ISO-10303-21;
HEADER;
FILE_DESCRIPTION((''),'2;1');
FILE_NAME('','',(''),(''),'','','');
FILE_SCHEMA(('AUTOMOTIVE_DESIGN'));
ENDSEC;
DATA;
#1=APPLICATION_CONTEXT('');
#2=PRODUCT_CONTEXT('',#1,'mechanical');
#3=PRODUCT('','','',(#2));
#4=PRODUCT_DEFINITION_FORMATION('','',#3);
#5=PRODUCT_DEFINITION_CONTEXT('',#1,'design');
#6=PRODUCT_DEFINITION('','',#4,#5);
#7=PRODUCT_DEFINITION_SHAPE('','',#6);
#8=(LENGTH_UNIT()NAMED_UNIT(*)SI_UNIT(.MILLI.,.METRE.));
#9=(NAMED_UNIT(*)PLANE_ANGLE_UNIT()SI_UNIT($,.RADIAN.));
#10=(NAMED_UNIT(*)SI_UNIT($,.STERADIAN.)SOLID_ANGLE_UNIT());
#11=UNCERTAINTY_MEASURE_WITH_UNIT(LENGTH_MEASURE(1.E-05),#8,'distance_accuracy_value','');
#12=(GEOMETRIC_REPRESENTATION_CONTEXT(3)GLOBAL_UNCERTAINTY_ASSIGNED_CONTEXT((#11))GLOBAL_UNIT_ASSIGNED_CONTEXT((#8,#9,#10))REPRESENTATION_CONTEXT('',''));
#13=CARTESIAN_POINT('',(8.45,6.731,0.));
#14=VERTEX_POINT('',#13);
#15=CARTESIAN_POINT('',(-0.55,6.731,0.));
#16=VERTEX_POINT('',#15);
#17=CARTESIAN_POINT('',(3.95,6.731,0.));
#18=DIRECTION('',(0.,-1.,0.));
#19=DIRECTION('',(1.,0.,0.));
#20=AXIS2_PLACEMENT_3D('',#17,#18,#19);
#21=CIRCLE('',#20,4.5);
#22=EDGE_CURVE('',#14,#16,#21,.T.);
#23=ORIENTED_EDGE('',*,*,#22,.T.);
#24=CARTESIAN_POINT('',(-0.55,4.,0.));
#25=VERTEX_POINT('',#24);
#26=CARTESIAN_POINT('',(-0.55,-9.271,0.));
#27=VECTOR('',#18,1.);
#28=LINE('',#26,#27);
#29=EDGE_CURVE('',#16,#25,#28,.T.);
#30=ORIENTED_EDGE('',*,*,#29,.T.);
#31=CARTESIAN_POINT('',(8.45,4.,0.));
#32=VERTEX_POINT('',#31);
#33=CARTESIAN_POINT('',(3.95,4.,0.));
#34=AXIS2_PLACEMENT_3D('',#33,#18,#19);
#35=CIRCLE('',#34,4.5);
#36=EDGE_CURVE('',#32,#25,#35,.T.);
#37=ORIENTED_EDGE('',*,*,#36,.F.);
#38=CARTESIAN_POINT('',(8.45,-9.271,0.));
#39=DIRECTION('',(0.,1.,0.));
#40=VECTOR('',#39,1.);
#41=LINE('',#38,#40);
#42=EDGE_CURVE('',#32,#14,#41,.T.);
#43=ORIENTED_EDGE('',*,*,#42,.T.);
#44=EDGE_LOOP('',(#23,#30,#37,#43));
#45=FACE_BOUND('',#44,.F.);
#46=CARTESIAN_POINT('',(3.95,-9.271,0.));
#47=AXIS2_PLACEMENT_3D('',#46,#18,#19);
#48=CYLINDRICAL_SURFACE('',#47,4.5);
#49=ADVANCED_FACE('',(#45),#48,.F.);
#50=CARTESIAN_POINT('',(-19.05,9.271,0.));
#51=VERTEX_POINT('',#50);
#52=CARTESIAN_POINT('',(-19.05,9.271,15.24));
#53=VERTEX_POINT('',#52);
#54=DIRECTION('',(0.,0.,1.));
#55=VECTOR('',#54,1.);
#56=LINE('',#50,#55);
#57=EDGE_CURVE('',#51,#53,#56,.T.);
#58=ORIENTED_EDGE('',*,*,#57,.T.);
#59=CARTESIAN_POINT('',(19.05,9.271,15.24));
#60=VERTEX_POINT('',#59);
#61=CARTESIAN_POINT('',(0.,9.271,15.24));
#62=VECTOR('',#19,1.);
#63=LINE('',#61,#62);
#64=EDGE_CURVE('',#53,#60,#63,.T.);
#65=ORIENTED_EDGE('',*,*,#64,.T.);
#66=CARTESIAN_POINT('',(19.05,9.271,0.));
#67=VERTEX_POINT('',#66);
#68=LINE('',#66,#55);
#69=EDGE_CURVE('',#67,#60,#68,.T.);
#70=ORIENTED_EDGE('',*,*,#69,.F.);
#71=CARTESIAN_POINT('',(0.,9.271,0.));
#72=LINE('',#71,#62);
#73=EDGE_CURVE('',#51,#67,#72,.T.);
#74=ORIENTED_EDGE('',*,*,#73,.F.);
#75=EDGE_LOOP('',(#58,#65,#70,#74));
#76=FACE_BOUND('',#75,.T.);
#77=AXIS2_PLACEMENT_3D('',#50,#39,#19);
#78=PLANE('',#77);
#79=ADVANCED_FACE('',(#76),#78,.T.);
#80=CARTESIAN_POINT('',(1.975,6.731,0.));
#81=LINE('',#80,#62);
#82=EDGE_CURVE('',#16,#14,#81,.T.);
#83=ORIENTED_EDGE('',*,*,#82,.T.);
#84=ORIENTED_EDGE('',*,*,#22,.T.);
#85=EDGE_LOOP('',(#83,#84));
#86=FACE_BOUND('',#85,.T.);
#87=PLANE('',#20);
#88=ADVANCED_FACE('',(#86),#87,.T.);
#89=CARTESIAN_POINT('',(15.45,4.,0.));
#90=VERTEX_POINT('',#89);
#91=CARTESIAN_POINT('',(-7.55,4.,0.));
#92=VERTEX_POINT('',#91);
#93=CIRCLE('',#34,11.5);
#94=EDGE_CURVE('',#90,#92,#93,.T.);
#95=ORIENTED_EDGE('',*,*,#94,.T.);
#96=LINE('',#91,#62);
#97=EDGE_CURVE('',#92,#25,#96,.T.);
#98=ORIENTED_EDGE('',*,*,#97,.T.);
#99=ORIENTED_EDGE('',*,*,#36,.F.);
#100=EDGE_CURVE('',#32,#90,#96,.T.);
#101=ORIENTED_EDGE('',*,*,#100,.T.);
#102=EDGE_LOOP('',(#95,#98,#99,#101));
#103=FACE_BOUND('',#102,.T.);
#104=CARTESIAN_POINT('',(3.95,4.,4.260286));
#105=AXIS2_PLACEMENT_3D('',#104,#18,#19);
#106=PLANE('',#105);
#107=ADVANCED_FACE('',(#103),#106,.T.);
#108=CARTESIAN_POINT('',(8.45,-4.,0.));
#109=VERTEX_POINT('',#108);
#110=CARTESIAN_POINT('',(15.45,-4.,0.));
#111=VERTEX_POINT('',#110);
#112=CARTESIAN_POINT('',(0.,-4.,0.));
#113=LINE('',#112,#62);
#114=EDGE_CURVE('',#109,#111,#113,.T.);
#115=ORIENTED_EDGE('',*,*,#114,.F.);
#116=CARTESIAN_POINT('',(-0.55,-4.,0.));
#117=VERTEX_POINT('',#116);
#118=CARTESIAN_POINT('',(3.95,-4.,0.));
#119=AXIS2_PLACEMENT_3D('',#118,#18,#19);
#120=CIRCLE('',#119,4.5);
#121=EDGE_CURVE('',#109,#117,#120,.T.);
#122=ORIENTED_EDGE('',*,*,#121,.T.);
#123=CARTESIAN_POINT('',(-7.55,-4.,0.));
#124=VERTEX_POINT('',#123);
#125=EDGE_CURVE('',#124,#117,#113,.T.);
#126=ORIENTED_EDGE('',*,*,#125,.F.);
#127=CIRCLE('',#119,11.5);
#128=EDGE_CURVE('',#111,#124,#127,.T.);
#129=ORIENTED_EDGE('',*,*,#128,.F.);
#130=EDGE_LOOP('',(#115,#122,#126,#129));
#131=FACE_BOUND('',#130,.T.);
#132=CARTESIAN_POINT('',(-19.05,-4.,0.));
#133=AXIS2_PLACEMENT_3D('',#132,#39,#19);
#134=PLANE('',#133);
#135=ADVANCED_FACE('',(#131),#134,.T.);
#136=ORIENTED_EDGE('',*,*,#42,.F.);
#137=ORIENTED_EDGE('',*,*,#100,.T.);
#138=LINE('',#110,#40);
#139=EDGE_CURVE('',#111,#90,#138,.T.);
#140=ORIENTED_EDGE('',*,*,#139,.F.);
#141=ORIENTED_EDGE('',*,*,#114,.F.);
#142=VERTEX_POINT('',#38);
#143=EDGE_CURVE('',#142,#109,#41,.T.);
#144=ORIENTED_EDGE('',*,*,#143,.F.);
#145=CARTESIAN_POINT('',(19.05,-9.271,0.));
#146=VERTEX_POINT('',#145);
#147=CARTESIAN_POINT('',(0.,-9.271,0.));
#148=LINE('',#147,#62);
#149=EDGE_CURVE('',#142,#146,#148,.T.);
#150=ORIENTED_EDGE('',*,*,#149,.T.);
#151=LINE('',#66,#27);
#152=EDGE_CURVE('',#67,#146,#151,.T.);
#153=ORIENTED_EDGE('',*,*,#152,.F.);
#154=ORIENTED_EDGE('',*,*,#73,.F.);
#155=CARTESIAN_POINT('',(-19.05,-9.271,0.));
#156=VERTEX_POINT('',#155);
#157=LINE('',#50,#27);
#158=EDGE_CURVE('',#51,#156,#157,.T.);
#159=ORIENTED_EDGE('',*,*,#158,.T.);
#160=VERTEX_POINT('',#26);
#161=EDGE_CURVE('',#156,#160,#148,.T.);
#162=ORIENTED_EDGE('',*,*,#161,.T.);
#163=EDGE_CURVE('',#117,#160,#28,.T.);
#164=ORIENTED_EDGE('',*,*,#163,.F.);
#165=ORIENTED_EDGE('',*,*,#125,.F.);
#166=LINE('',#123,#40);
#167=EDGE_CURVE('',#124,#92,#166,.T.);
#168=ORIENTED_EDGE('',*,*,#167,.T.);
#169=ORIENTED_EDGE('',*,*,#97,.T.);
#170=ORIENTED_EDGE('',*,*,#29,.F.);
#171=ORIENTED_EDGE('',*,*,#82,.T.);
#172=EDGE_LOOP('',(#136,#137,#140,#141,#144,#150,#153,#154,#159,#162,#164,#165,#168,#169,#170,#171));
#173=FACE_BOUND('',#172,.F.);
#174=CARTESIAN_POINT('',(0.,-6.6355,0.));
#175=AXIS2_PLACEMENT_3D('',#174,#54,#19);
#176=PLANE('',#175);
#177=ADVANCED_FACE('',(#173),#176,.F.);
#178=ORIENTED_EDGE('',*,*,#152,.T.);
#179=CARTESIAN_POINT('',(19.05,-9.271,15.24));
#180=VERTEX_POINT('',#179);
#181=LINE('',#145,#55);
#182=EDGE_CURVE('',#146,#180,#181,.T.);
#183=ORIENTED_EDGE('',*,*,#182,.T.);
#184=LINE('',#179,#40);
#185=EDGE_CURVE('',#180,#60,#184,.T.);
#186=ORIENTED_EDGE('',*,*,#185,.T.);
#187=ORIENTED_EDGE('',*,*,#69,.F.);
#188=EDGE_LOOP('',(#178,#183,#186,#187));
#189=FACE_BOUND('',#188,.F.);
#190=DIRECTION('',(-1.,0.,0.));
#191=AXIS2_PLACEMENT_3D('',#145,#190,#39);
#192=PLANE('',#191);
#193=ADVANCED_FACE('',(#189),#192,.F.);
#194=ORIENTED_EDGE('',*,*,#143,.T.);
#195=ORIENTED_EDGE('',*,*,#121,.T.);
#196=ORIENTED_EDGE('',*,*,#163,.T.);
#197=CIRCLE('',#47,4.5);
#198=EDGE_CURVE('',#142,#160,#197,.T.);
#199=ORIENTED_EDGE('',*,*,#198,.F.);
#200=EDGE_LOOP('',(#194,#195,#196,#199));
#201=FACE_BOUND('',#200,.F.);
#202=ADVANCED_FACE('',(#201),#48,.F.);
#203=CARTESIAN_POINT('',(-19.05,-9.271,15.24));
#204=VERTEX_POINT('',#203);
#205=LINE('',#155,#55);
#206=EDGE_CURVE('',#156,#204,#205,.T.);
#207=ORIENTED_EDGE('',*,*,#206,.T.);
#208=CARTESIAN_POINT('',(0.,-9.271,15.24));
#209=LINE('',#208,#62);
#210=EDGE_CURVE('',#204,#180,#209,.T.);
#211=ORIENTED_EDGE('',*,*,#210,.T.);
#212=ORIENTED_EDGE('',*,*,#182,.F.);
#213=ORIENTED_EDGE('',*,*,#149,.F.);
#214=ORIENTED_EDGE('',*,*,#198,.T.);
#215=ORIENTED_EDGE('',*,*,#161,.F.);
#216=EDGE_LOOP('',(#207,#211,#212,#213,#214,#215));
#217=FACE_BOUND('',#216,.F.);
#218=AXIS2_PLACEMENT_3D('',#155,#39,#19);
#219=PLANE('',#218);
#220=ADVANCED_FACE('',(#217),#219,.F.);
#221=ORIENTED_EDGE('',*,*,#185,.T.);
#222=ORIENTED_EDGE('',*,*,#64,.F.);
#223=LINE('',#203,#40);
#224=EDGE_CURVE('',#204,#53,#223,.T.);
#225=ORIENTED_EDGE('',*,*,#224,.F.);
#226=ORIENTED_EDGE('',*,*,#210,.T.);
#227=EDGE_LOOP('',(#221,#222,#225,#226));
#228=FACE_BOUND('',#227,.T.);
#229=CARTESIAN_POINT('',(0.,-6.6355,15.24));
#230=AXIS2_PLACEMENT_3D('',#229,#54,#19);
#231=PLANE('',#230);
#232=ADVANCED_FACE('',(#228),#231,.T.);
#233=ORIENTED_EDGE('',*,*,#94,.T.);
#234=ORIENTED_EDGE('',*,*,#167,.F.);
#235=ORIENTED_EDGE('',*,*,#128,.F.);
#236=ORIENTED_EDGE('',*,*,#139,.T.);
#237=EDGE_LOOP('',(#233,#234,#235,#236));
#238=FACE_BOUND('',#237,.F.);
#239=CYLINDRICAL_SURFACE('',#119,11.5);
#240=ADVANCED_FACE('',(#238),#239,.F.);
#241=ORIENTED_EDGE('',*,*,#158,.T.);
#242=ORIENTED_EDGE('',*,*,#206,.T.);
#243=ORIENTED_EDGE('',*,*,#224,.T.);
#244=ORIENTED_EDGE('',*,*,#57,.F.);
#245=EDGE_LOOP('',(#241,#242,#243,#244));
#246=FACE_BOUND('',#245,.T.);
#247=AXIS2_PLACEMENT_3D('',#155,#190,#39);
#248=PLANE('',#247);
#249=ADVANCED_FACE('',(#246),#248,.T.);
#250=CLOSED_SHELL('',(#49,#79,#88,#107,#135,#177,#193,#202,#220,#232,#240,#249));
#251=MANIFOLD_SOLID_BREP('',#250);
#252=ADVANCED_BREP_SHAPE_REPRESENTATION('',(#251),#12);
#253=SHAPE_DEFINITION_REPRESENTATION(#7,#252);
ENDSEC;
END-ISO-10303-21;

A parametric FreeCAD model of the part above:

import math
import FreeCAD as App
import Part
import Sketcher
from FreeCAD import Vector

doc = App.newDocument("Part")
body = doc.addObject("PartDesign::Body", "Body")

# Sketch on XY plane
sketch1 = body.newObject("Sketcher::SketchObject", "Sketch")
sketch1.AttachmentSupport = (doc.getObject("XY_Plane"), [""])
sketch1.MapMode = "FlatFace"
sketch1.addGeometry(Part.LineSegment(Vector(-19, 9, 0), Vector(-19, -4, 0)), False)
sketch1.addGeometry(Part.LineSegment(Vector(-19, -4, 0), Vector(19, -4, 0)), False)
sketch1.addGeometry(Part.LineSegment(Vector(19, -4, 0), Vector(19, 9, 0)), False)
sketch1.addGeometry(Part.LineSegment(Vector(19, 9, 0), Vector(-19, 9, 0)), False)
sketch1.addConstraint(Sketcher.Constraint("Coincident", 0, 2, 1, 1))
sketch1.addConstraint(Sketcher.Constraint("Coincident", 1, 2, 2, 1))
sketch1.addConstraint(Sketcher.Constraint("Coincident", 2, 2, 3, 1))
sketch1.addConstraint(Sketcher.Constraint("Coincident", 3, 2, 0, 1))
sketch1.addConstraint(Sketcher.Constraint("Vertical", 0))
sketch1.addConstraint(Sketcher.Constraint("Horizontal", 1))
sketch1.addConstraint(Sketcher.Constraint("Vertical", 2))
sketch1.addConstraint(Sketcher.Constraint("Horizontal", 3))
sketch1.addConstraint(Sketcher.Constraint("DistanceX", 1, 1, 1, 2, 38.1))
sketch1.addConstraint(Sketcher.Constraint("DistanceY", 0, 2, -1, 1, 4.0))
sketch1.addConstraint(Sketcher.Constraint("DistanceY", 0, 2, 0, 1, 13.271))
sketch1.addConstraint(Sketcher.Constraint("DistanceX", 0, 2, -1, 1, 19.05))
pad1 = body.newObject("PartDesign::Pad", "Pad")
pad1.Profile = sketch1
pad1.Length = 15.24

# Sketch on XZ plane
sketch2 = body.newObject("Sketcher::SketchObject", "Sketch001")
sketch2.AttachmentSupport = (doc.getObject("XZ_Plane"), [""])
sketch2.MapMode = "FlatFace"
sketch2.AttachmentOffset = App.Placement(Vector(0, 0, 4), App.Rotation())
sketch2.addGeometry(Part.ArcOfCircle(Part.Circle(Vector(4, 0, 0), Vector(0, 0, 1), 12), math.radians(0), math.radians(180)), False)
sketch2.addGeometry(Part.LineSegment(Vector(-8, 0, 0), Vector(15, 0, 0)), False)
sketch2.addConstraint(Sketcher.Constraint("Coincident", 0, 1, 1, 2))
sketch2.addConstraint(Sketcher.Constraint("Coincident", 1, 1, 0, 2))
sketch2.addConstraint(Sketcher.Constraint("Horizontal", 1))
sketch2.addConstraint(Sketcher.Constraint("PointOnObject", 0, 3, -1))
sketch2.addConstraint(Sketcher.Constraint("PointOnObject", 0, 1, -1))
sketch2.addConstraint(Sketcher.Constraint("Radius", 0, 11.5))
sketch2.addConstraint(Sketcher.Constraint("DistanceX", -1, 1, 0, 3, 3.95))
pocket1 = body.newObject("PartDesign::Pocket", "Pocket")
pocket1.Profile = sketch2
pocket1.Length = 8

# Sketch on XY plane
sketch3 = body.newObject("Sketcher::SketchObject", "Sketch002")
sketch3.AttachmentSupport = (doc.getObject("XY_Plane"), [""])
sketch3.MapMode = "FlatFace"
sketch3.addGeometry(Part.LineSegment(Vector(-19, -4, 0), Vector(-19, -9, 0)), False)
sketch3.addGeometry(Part.LineSegment(Vector(-19, -9, 0), Vector(19, -9, 0)), False)
sketch3.addGeometry(Part.LineSegment(Vector(19, -9, 0), Vector(19, -4, 0)), False)
sketch3.addGeometry(Part.LineSegment(Vector(19, -4, 0), Vector(-19, -4, 0)), False)
sketch3.addConstraint(Sketcher.Constraint("Coincident", 0, 2, 1, 1))
sketch3.addConstraint(Sketcher.Constraint("Coincident", 1, 2, 2, 1))
sketch3.addConstraint(Sketcher.Constraint("Coincident", 2, 2, 3, 1))
sketch3.addConstraint(Sketcher.Constraint("Coincident", 3, 2, 0, 1))
sketch3.addConstraint(Sketcher.Constraint("Vertical", 0))
sketch3.addConstraint(Sketcher.Constraint("Horizontal", 1))
sketch3.addConstraint(Sketcher.Constraint("Vertical", 2))
sketch3.addConstraint(Sketcher.Constraint("Horizontal", 3))
sketch3.addConstraint(Sketcher.Constraint("DistanceX", 1, 1, 1, 2, 38.1))
sketch3.addConstraint(Sketcher.Constraint("DistanceY", 2, 2, -1, 1, 4.0))
sketch3.addConstraint(Sketcher.Constraint("DistanceY", 0, 2, 0, 1, 5.271))
sketch3.addConstraint(Sketcher.Constraint("DistanceX", 0, 2, -1, 1, 19.05))
pad2 = body.newObject("PartDesign::Pad", "Pad001")
pad2.Profile = sketch3
pad2.Length = 15.24

# Sketch on XZ plane
sketch4 = body.newObject("Sketcher::SketchObject", "Sketch003")
sketch4.AttachmentSupport = (doc.getObject("XZ_Plane"), [""])
sketch4.MapMode = "FlatFace"
sketch4.AttachmentOffset = App.Placement(Vector(0, 0, 9.271), App.Rotation())
sketch4.addGeometry(Part.Circle(Vector(4, 0, 0), Vector(0, 0, 1), 4.5), False)
sketch4.addConstraint(Sketcher.Constraint("PointOnObject", 0, 3, -1))
sketch4.addConstraint(Sketcher.Constraint("Diameter", 0, 9.0))
sketch4.addConstraint(Sketcher.Constraint("DistanceX", -1, 1, 0, 3, 3.95))
pocket2 = body.newObject("PartDesign::Pocket", "Pocket001")
pocket2.Profile = sketch4
pocket2.Length = 16.002

doc.recompute()
